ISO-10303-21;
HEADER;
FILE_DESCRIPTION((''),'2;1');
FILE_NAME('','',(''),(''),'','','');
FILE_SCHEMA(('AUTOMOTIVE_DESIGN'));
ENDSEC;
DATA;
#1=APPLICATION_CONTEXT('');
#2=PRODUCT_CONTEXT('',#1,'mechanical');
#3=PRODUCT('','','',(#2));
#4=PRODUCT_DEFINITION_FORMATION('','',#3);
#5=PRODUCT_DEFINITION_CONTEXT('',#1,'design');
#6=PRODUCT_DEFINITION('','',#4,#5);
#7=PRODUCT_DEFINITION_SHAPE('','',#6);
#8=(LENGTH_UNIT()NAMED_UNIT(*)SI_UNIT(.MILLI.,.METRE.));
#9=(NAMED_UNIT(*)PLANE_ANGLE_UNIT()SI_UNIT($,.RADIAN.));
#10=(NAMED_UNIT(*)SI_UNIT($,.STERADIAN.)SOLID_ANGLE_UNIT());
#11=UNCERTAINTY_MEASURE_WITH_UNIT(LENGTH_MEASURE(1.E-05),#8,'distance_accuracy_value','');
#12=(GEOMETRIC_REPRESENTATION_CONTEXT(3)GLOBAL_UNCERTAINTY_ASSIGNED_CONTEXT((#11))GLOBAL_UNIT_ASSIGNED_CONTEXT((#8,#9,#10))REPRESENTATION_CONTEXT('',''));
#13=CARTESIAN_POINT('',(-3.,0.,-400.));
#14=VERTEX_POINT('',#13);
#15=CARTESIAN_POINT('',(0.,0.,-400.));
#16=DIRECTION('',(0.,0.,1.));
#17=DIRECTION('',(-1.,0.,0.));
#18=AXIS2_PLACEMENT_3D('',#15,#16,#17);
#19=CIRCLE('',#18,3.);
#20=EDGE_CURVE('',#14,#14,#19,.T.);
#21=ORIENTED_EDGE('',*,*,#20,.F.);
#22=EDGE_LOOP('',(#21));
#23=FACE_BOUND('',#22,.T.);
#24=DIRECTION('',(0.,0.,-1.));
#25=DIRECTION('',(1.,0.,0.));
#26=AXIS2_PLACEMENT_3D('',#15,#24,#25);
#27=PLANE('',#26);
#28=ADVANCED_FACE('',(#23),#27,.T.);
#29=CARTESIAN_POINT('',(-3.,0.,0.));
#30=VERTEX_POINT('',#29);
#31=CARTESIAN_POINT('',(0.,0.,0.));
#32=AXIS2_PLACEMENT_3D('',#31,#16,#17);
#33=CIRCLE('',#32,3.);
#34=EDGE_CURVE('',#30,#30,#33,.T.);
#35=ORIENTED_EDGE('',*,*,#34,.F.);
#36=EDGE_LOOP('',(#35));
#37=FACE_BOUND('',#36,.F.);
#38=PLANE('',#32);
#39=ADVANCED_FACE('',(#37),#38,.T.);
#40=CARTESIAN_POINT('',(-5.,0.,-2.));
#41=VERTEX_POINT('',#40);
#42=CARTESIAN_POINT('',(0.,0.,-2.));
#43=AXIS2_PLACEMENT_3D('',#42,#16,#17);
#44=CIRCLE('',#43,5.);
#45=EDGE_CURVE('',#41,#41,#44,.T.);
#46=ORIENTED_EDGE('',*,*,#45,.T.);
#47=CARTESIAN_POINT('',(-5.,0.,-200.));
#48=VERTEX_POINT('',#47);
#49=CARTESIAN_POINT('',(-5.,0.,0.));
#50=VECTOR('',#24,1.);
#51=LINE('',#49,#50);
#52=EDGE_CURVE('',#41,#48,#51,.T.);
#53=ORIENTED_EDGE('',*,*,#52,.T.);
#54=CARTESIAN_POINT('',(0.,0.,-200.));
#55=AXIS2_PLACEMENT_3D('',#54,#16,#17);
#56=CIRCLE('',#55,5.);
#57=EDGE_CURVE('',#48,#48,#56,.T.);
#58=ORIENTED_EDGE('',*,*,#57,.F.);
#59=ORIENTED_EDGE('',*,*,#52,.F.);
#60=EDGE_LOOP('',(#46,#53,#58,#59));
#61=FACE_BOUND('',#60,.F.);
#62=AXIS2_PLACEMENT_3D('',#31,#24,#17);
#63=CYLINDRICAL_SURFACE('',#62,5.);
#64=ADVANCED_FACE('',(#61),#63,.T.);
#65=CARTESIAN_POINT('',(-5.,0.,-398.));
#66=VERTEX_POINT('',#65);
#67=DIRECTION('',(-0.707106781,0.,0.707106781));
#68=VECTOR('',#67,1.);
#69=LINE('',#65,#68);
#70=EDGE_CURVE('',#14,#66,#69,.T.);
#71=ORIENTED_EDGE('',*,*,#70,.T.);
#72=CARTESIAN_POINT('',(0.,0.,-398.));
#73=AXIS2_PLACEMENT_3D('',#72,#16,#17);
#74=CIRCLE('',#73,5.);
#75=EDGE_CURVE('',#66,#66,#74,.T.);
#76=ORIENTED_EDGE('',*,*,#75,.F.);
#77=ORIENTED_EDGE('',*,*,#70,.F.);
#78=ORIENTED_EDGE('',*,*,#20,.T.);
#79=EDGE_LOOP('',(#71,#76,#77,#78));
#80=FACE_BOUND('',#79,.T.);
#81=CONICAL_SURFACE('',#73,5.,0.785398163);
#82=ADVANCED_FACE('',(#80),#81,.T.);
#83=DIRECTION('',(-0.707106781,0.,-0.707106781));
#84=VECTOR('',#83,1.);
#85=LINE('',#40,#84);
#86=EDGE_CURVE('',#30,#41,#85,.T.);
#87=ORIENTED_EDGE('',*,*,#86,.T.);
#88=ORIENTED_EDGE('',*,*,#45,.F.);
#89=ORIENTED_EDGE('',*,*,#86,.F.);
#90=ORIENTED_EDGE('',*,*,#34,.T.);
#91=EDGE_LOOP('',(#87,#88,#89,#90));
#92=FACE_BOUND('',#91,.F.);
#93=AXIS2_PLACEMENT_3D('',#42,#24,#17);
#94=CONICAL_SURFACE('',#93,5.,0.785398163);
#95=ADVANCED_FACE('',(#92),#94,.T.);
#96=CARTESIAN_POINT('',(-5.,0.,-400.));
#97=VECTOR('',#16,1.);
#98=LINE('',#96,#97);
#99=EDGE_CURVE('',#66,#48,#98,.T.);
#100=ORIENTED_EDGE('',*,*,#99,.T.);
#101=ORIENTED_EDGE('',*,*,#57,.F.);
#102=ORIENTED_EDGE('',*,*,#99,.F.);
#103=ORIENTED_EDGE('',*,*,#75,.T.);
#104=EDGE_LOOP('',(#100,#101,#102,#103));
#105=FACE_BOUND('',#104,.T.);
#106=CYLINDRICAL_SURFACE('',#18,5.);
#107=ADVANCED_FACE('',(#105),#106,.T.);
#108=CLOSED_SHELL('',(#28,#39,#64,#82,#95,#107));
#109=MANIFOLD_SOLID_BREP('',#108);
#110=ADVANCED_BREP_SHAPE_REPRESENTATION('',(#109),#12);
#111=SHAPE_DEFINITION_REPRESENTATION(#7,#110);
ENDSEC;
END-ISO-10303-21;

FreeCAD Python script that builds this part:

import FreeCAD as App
import Part
import Sketcher
Q = App.Units.Quantity


def edges_at(feature, points):
    """Names of the edges that pass closest to the given points."""
    edges = feature.Shape.Edges
    near = lambda p: min(range(len(edges)), key=lambda i: edges[i].distToShape(Part.Vertex(*p))[0])
    return sorted({f"Edge{near(p) + 1}" for p in points})


def add_polygon(sketch, points):
    """Adds a closed chain of lines whose ends are joined by coincident constraints."""
    first, n = sketch.GeometryCount, len(points)
    for a, b in zip(points, points[1:] + points[:1]):
        sketch.addGeometry(Part.LineSegment(App.Vector(*a, 0), App.Vector(*b, 0)), False)
    for i in range(n):
        sketch.addConstraint(Sketcher.Constraint("Coincident", first + i, 2, first + (i + 1) % n, 1))

doc = App.newDocument("Part")
body = doc.addObject("PartDesign::Body", "Body")

sketch1 = body.newObject("Sketcher::SketchObject", "Sketch")
sketch1.AttachmentSupport = (doc.getObject("XZ_Plane"), [""])
sketch1.MapMode = "FlatFace"
add_polygon(sketch1, [(-5, 0), (0, 0), (0, -200), (-5, -200)])
sketch1.addConstraint(Sketcher.Constraint("Horizontal", 0))
sketch1.addConstraint(Sketcher.Constraint("Vertical", 1))
sketch1.addConstraint(Sketcher.Constraint("Horizontal", 2))
sketch1.addConstraint(Sketcher.Constraint("Vertical", 3))
sketch1.addConstraint(Sketcher.Constraint("Coincident", 0, 2, -1, 1))
sketch1.addConstraint(Sketcher.Constraint("DistanceY", 1, 2, 1, 1, Q("200 mm")))
sketch1.addConstraint(Sketcher.Constraint("DistanceX", 0, 1, 0, 2, Q("5 mm")))
revolution = body.newObject("PartDesign::Revolution", "Revolution")
revolution.Profile = sketch1
revolution.ReferenceAxis = (sketch1, ["V_Axis"])
revolution.Angle = 360
doc.recompute()

chamfer = body.newObject("PartDesign::Chamfer", "Chamfer")
chamfer.Base = (revolution, edges_at(revolution, [(5, 0, 0)]))
chamfer.Size = 2
doc.recompute()

datumplane = body.newObject("PartDesign::Plane", "DatumPlane")
datumplane.AttachmentSupport = (doc.getObject("XY_Plane"), [""])
datumplane.MapMode = "FlatFace"
datumplane.AttachmentOffset = App.Placement(App.Vector(0, 0, -200), App.Rotation())
mirrored = body.newObject("PartDesign::Mirrored", "Mirrored")
mirrored.TransformMode = "Transform body"
mirrored.MirrorPlane = (datumplane, [""])
body.Tip = mirrored

doc.recompute()
